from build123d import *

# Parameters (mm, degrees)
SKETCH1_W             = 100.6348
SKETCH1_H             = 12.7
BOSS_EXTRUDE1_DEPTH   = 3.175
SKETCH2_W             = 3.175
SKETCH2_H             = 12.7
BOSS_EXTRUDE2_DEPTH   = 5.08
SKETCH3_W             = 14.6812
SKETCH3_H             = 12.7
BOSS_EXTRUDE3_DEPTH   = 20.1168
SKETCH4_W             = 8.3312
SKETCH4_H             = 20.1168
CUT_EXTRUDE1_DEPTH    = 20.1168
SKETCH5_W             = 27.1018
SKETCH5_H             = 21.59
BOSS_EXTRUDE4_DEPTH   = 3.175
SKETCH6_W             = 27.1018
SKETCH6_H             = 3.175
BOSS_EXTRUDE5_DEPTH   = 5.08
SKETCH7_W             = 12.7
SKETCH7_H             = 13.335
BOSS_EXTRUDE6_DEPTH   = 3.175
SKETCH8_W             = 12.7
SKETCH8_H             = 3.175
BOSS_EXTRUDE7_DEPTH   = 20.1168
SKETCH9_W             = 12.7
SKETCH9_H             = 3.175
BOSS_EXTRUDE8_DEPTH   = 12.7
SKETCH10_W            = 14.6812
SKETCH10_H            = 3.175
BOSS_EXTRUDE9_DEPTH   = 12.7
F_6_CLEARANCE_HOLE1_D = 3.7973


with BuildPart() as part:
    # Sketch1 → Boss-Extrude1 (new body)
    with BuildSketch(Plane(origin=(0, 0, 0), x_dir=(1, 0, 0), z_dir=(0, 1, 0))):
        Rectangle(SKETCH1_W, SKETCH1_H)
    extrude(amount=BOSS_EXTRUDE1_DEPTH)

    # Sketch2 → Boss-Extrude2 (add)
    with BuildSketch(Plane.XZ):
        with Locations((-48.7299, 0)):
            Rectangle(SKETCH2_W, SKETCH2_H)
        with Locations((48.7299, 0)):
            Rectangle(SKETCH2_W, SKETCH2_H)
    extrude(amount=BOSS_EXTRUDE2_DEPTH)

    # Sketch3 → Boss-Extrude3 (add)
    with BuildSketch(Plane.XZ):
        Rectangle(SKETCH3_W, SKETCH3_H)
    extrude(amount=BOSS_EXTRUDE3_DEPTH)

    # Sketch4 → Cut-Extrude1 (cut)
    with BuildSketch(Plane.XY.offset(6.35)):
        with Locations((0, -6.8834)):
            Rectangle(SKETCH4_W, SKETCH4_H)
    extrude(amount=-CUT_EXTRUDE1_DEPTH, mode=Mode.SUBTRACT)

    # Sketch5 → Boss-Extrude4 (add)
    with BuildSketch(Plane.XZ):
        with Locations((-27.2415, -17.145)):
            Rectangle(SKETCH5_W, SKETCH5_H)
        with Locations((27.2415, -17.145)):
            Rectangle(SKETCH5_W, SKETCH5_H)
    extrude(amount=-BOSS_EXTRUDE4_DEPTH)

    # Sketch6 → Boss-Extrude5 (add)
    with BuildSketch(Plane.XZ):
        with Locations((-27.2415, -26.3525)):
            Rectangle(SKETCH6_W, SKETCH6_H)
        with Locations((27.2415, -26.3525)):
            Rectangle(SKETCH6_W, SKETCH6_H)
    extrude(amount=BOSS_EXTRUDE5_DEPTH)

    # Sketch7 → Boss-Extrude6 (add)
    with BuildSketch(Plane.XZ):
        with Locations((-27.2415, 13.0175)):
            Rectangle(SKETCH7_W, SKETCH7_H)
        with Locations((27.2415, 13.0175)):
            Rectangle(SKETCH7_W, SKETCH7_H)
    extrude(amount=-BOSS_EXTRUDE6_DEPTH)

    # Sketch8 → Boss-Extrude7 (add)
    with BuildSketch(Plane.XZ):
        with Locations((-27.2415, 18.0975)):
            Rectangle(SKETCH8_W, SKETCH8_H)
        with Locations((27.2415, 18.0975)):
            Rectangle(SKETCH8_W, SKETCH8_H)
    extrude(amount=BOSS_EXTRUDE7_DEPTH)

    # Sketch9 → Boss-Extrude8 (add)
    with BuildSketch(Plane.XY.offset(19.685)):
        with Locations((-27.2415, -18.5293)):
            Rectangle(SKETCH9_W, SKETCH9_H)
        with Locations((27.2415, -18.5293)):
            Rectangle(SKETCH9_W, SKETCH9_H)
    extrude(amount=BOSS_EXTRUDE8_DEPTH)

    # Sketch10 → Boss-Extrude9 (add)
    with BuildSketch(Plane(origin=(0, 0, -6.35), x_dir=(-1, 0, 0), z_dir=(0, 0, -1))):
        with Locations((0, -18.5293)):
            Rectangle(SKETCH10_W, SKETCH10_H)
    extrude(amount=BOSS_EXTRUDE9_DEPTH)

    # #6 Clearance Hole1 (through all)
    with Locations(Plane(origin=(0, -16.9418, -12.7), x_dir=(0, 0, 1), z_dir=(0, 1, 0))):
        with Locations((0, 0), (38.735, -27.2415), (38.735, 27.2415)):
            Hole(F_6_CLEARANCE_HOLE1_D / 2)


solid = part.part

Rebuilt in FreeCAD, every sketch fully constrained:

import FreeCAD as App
import Part
import Sketcher

V = App.Vector
Q = App.Units.Quantity


def add_polygon(sketch, points):
    """Adds a closed chain of lines whose ends are joined by coincident constraints."""
    first, n = sketch.GeometryCount, len(points)
    for a, b in zip(points, points[1:] + points[:1]):
        sketch.addGeometry(Part.LineSegment(App.Vector(*a, 0), App.Vector(*b, 0)), False)
    for i in range(n):
        sketch.addConstraint(Sketcher.Constraint("Coincident", first + i, 2, first + (i + 1) % n, 1))

doc = App.newDocument("Part")
params = doc.addObject("Spreadsheet::Sheet", "Params")
for row, (alias, value) in enumerate([
    ("sketch1_height", "0.5 in"),
    ("sketch1_width", "3.962 in"),
    ("pad1_length", "0.125 in"),
    ("sketch2_height", "0.5 in"),
    ("sketch2_width", "0.125 in"),
    ("pad2_length", "0.2 in"),
    ("sketch3_height", "0.5 in"),
    ("sketch3_width", "0.578 in"),
    ("pad3_length", "0.792 in"),
    ("sketch4_width", "0.328 in"),
    ("sketch4_height", "0.792 in"),
    ("pocket1_length", "0.792 in"),
    ("sketch5_height", "0.85 in"),
    ("sketch5_width", "1.067 in"),
    ("pad4_length", "0.125 in"),
    ("sketch6_width", "1.067 in"),
    ("sketch6_height", "0.125 in"),
    ("pad5_length", "0.2 in"),
    ("sketch7_width", "0.5 in"),
    ("sketch7_height", "0.525 in"),
    ("pad6_length", "0.125 in"),
    ("sketch8_width", "0.5 in"),
    ("sketch8_height", "0.125 in"),
    ("pad7_length", "0.792 in"),
    ("sketch9_width", "0.5 in"),
    ("sketch9_height", "0.125 in"),
    ("pad8_length", "0.5 in"),
    ("sketch10_width", "0.578 in"),
    ("sketch10_height", "0.125 in"),
    ("pad9_length", "0.5 in"),
    ("hole_diameter", "0.1495 in"),
], start=1):
    params.set(f"A{row}", alias)
    params.set(f"B{row}", "=" + value)
    params.setAlias(f"B{row}", alias)

body = doc.addObject("PartDesign::Body", "Body")

sketch1 = body.newObject("Sketcher::SketchObject", "Sketch")
sketch1.AttachmentSupport = (doc.getObject("XZ_Plane"), [""])
sketch1.MapMode = "FlatFace"
add_polygon(sketch1, [(-50, -6), (-50, 6), (50, 6), (50, -6)])
sketch1.addConstraint(Sketcher.Constraint("Vertical", 0))
sketch1.addConstraint(Sketcher.Constraint("Horizontal", 1))
sketch1.addConstraint(Sketcher.Constraint("Vertical", 2))
sketch1.addConstraint(Sketcher.Constraint("Horizontal", 3))
sketch1.addConstraint(Sketcher.Constraint("Symmetric", 0, 2, 2, 2, -1, 1))
sketch1.addConstraint(Sketcher.Constraint("DistanceY", 0, 1, 0, 2, Q("0.5 in")))
sketch1.addConstraint(Sketcher.Constraint("DistanceX", 1, 1, 1, 2, Q("3.962 in")))
sketch1.setExpression("Constraints[9]", "Params.sketch1_height")
sketch1.setExpression("Constraints[10]", "Params.sketch1_width")
pad1 = body.newObject("PartDesign::Pad", "Pad")
pad1.Profile = sketch1
pad1.setExpression("Length", "Params.pad1_length")
pad1.Reversed = True

sketch2 = body.newObject("Sketcher::SketchObject", "Sketch001")
sketch2.AttachmentSupport = (doc.getObject("XZ_Plane"), [""])
sketch2.MapMode = "FlatFace"
add_polygon(sketch2, [(-50.3, 6.3), (-50.3, -6.3), (-47.1, -6.3), (-47.1, 6.3)])
add_polygon(sketch2, [(47.1, 6.3), (47.1, -6.3), (50.3, -6.3), (50.3, 6.3)])
sketch2.addConstraint(Sketcher.Constraint("Vertical", 0))
sketch2.addConstraint(Sketcher.Constraint("Horizontal", 1))
sketch2.addConstraint(Sketcher.Constraint("Vertical", 2))
sketch2.addConstraint(Sketcher.Constraint("Horizontal", 3))
sketch2.addConstraint(Sketcher.Constraint("Vertical", 4))
sketch2.addConstraint(Sketcher.Constraint("Horizontal", 5))
sketch2.addConstraint(Sketcher.Constraint("Vertical", 6))
sketch2.addConstraint(Sketcher.Constraint("Horizontal", 7))
sketch2.addConstraint(Sketcher.Constraint("Symmetric", 2, 2, 4, 2, -1, 1))
sketch2.addConstraint(Sketcher.Constraint("Symmetric", 0, 2, 6, 2, -1, 1))
sketch2.addConstraint(Sketcher.Constraint("Horizontal", 1, 2, 4, 2))
sketch2.addConstraint(Sketcher.Constraint("DistanceY", 0, 2, 0, 1, Q("0.5 in")))
sketch2.addConstraint(Sketcher.Constraint("DistanceX", 1, 1, 1, 2, Q("0.125 in")))
sketch2.addConstraint(Sketcher.Constraint("DistanceX", 0, 2, -1, 1, Q("1.981 in")))
sketch2.setExpression("Constraints[19]", "Params.sketch2_height")
sketch2.setExpression("Constraints[20]", "Params.sketch2_width")
pad2 = body.newObject("PartDesign::Pad", "Pad001")
pad2.Profile = sketch2
pad2.setExpression("Length", "Params.pad2_length")

sketch3 = body.newObject("Sketcher::SketchObject", "Sketch002")
sketch3.AttachmentSupport = (doc.getObject("XZ_Plane"), [""])
sketch3.MapMode = "FlatFace"
add_polygon(sketch3, [(-7, 6), (-7, -6), (7, -6), (7, 6)])
sketch3.addConstraint(Sketcher.Constraint("Vertical", 0))
sketch3.addConstraint(Sketcher.Constraint("Horizontal", 1))
sketch3.addConstraint(Sketcher.Constraint("Vertical", 2))
sketch3.addConstraint(Sketcher.Constraint("Horizontal", 3))
sketch3.addConstraint(Sketcher.Constraint("Symmetric", 0, 2, 2, 2, -1, 1))
sketch3.addConstraint(Sketcher.Constraint("DistanceY", 0, 2, 0, 1, Q("0.5 in")))
sketch3.addConstraint(Sketcher.Constraint("DistanceX", 1, 1, 1, 2, Q("0.578 in")))
sketch3.setExpression("Constraints[9]", "Params.sketch3_height")
sketch3.setExpression("Constraints[10]", "Params.sketch3_width")
pad3 = body.newObject("PartDesign::Pad", "Pad002")
pad3.Profile = sketch3
pad3.setExpression("Length", "Params.pad3_length")

sketch4 = body.newObject("Sketcher::SketchObject", "Sketch003")
sketch4.AttachmentSupport = (doc.getObject("XY_Plane"), [""])
sketch4.MapMode = "FlatFace"
sketch4.AttachmentOffset = App.Placement(V(0, 0, 0.25 * 25.4), App.Rotation())
add_polygon(sketch4, [(-4, 3), (-4, -17), (4, -17), (4, 3)])
sketch4.addConstraint(Sketcher.Constraint("Vertical", 0))
sketch4.addConstraint(Sketcher.Constraint("Horizontal", 1))
sketch4.addConstraint(Sketcher.Constraint("Vertical", 2))
sketch4.addConstraint(Sketcher.Constraint("Horizontal", 3))
sketch4.addConstraint(Sketcher.Constraint("DistanceX", 1, 1, 1, 2, Q("0.328 in")))
sketch4.addConstraint(Sketcher.Constraint("DistanceY", 0, 2, 0, 1, Q("0.792 in")))
sketch4.addConstraint(Sketcher.Constraint("DistanceX", 0, 2, -1, 1, Q("0.164 in")))
sketch4.addConstraint(Sketcher.Constraint("DistanceY", 0, 2, -1, 1, Q("0.667 in")))
sketch4.setExpression("Constraints[8]", "Params.sketch4_width")
sketch4.setExpression("Constraints[9]", "Params.sketch4_height")
pocket1 = body.newObject("PartDesign::Pocket", "Pocket")
pocket1.Profile = sketch4
pocket1.setExpression("Length", "Params.pocket1_length")

sketch5 = body.newObject("Sketcher::SketchObject", "Sketch004")
sketch5.AttachmentSupport = (doc.getObject("XZ_Plane"), [""])
sketch5.MapMode = "FlatFace"
add_polygon(sketch5, [(-41, -6), (-41, -28), (-14, -28), (-14, -6)])
add_polygon(sketch5, [(14, -6), (14, -28), (41, -28), (41, -6)])
sketch5.addConstraint(Sketcher.Constraint("Vertical", 0))
sketch5.addConstraint(Sketcher.Constraint("Horizontal", 1))
sketch5.addConstraint(Sketcher.Constraint("Vertical", 2))
sketch5.addConstraint(Sketcher.Constraint("Horizontal", 3))
sketch5.addConstraint(Sketcher.Constraint("Vertical", 4))
sketch5.addConstraint(Sketcher.Constraint("Horizontal", 5))
sketch5.addConstraint(Sketcher.Constraint("Vertical", 6))
sketch5.addConstraint(Sketcher.Constraint("Horizontal", 7))
sketch5.addConstraint(Sketcher.Constraint("Symmetric", 1, 2, 4, 2, -2))
sketch5.addConstraint(Sketcher.Constraint("Symmetric", 3, 2, 6, 2, -2))
sketch5.addConstraint(Sketcher.Constraint("DistanceY", 0, 2, 0, 1, Q("0.85 in")))
sketch5.addConstraint(Sketcher.Constraint("DistanceY", 0, 2, -1, 1, Q("1.1 in")))
sketch5.addConstraint(Sketcher.Constraint("DistanceX", 1, 1, 1, 2, Q("1.067 in")))
sketch5.addConstraint(Sketcher.Constraint("DistanceX", 0, 2, -1, 1, Q("1.606 in")))
sketch5.setExpression("Constraints[18]", "Params.sketch5_height")
sketch5.setExpression("Constraints[20]", "Params.sketch5_width")
pad4 = body.newObject("PartDesign::Pad", "Pad003")
pad4.Profile = sketch5
pad4.setExpression("Length", "Params.pad4_length")
pad4.Reversed = True

sketch6 = body.newObject("Sketcher::SketchObject", "Sketch005")
sketch6.AttachmentSupport = (doc.getObject("XZ_Plane"), [""])
sketch6.MapMode = "FlatFace"
add_polygon(sketch6, [(-40.8, -24.8), (-40.8, -27.9), (-13.7, -27.9), (-13.7, -24.8)])
add_polygon(sketch6, [(13.7, -24.8), (13.7, -27.9), (40.8, -27.9), (40.8, -24.8)])
sketch6.addConstraint(Sketcher.Constraint("Vertical", 0))
sketch6.addConstraint(Sketcher.Constraint("Horizontal", 1))
sketch6.addConstraint(Sketcher.Constraint("Vertical", 2))
sketch6.addConstraint(Sketcher.Constraint("Horizontal", 3))
sketch6.addConstraint(Sketcher.Constraint("Vertical", 4))
sketch6.addConstraint(Sketcher.Constraint("Horizontal", 5))
sketch6.addConstraint(Sketcher.Constraint("Vertical", 6))
sketch6.addConstraint(Sketcher.Constraint("Horizontal", 7))
sketch6.addConstraint(Sketcher.Constraint("Symmetric", 1, 2, 4, 2, -2))
sketch6.addConstraint(Sketcher.Constraint("Symmetric", 3, 2, 6, 2, -2))
sketch6.addConstraint(Sketcher.Constraint("DistanceY", 0, 2, -1, 1, Q("1.1 in")))
sketch6.addConstraint(Sketcher.Constraint("DistanceX", 1, 1, 1, 2, Q("1.067 in")))
sketch6.addConstraint(Sketcher.Constraint("DistanceY", 0, 2, 0, 1, Q("0.125 in")))
sketch6.addConstraint(Sketcher.Constraint("DistanceX", 0, 2, -1, 1, Q("1.606 in")))
sketch6.setExpression("Constraints[19]", "Params.sketch6_width")
sketch6.setExpression("Constraints[20]", "Params.sketch6_height")
pad5 = body.newObject("PartDesign::Pad", "Pad004")
pad5.Profile = sketch6
pad5.setExpression("Length", "Params.pad5_length")

sketch7 = body.newObject("Sketcher::SketchObject", "Sketch006")
sketch7.AttachmentSupport = (doc.getObject("XZ_Plane"), [""])
sketch7.MapMode = "FlatFace"
add_polygon(sketch7, [(-34, 20), (-34, 6), (-21, 6), (-21, 20)])
add_polygon(sketch7, [(21, 20), (21, 6), (34, 6), (34, 20)])
sketch7.addConstraint(Sketcher.Constraint("Vertical", 0))
sketch7.addConstraint(Sketcher.Constraint("Horizontal", 1))
sketch7.addConstraint(Sketcher.Constraint("Vertical", 2))
sketch7.addConstraint(Sketcher.Constraint("Horizontal", 3))
sketch7.addConstraint(Sketcher.Constraint("Vertical", 4))
sketch7.addConstraint(Sketcher.Constraint("Horizontal", 5))
sketch7.addConstraint(Sketcher.Constraint("Vertical", 6))
sketch7.addConstraint(Sketcher.Constraint("Horizontal", 7))
sketch7.addConstraint(Sketcher.Constraint("Symmetric", 1, 2, 4, 2, -2))
sketch7.addConstraint(Sketcher.Constraint("Symmetric", 3, 2, 6, 2, -2))
sketch7.addConstraint(Sketcher.Constraint("DistanceX", 1, 1, 1, 2, Q("0.5 in")))
sketch7.addConstraint(Sketcher.Constraint("DistanceY", 0, 2, 0, 1, Q("0.525 in")))
sketch7.addConstraint(Sketcher.Constraint("DistanceY", -1, 1, 0, 2, Q("0.25 in")))
sketch7.addConstraint(Sketcher.Constraint("DistanceX", 1, 2, 4, 2, Q("1.645 in")))
sketch7.setExpression("Constraints[18]", "Params.sketch7_width")
sketch7.setExpression("Constraints[19]", "Params.sketch7_height")
pad6 = body.newObject("PartDesign::Pad", "Pad005")
pad6.Profile = sketch7
pad6.setExpression("Length", "Params.pad6_length")
pad6.Reversed = True

sketch8 = body.newObject("Sketcher::SketchObject", "Sketch007")
sketch8.AttachmentSupport = (doc.getObject("XZ_Plane"), [""])
sketch8.MapMode = "FlatFace"
add_polygon(sketch8, [(-33.6, 19.7), (-33.6, 16.5), (-20.9, 16.5), (-20.9, 19.7)])
add_polygon(sketch8, [(20.9, 19.7), (20.9, 16.5), (33.6, 16.5), (33.6, 19.7)])
sketch8.addConstraint(Sketcher.Constraint("Vertical", 0))
sketch8.addConstraint(Sketcher.Constraint("Horizontal", 1))
sketch8.addConstraint(Sketcher.Constraint("Vertical", 2))
sketch8.addConstraint(Sketcher.Constraint("Horizontal", 3))
sketch8.addConstraint(Sketcher.Constraint("Vertical", 4))
sketch8.addConstraint(Sketcher.Constraint("Horizontal", 5))
sketch8.addConstraint(Sketcher.Constraint("Vertical", 6))
sketch8.addConstraint(Sketcher.Constraint("Horizontal", 7))
sketch8.addConstraint(Sketcher.Constraint("Symmetric", 1, 2, 4, 2, -2))
sketch8.addConstraint(Sketcher.Constraint("Symmetric", 3, 2, 6, 2, -2))
sketch8.addConstraint(Sketcher.Constraint("DistanceX", 1, 1, 1, 2, Q("0.5 in")))
sketch8.addConstraint(Sketcher.Constraint("DistanceY", 0, 2, 0, 1, Q("0.125 in")))
sketch8.addConstraint(Sketcher.Constraint("DistanceY", -1, 1, 0, 2, Q("0.65 in")))
sketch8.addConstraint(Sketcher.Constraint("DistanceX", 1, 2, 4, 2, Q("1.645 in")))
sketch8.setExpression("Constraints[18]", "Params.sketch8_width")
sketch8.setExpression("Constraints[19]", "Params.sketch8_height")
pad7 = body.newObject("PartDesign::Pad", "Pad006")
pad7.Profile = sketch8
pad7.setExpression("Length", "Params.pad7_length")

sketch9 = body.newObject("Sketcher::SketchObject", "Sketch008")
sketch9.AttachmentSupport = (doc.getObject("XY_Plane"), [""])
sketch9.MapMode = "FlatFace"
sketch9.AttachmentOffset = App.Placement(V(0, 0, 0.775 * 25.4), App.Rotation())
add_polygon(sketch9, [(-33.6, -16.9), (-33.6, -20.1), (-20.9, -20.1), (-20.9, -16.9)])
add_polygon(sketch9, [(20.9, -16.9), (20.9, -20.1), (33.6, -20.1), (33.6, -16.9)])
sketch9.addConstraint(Sketcher.Constraint("Vertical", 0))
sketch9.addConstraint(Sketcher.Constraint("Horizontal", 1))
sketch9.addConstraint(Sketcher.Constraint("Vertical", 2))
sketch9.addConstraint(Sketcher.Constraint("Horizontal", 3))
sketch9.addConstraint(Sketcher.Constraint("Vertical", 4))
sketch9.addConstraint(Sketcher.Constraint("Horizontal", 5))
sketch9.addConstraint(Sketcher.Constraint("Vertical", 6))
sketch9.addConstraint(Sketcher.Constraint("Horizontal", 7))
sketch9.addConstraint(Sketcher.Constraint("Symmetric", 1, 2, 4, 2, -2))
sketch9.addConstraint(Sketcher.Constraint("Symmetric", 3, 2, 6, 2, -2))
sketch9.addConstraint(Sketcher.Constraint("DistanceX", 1, 1, 1, 2, Q("0.5 in")))
sketch9.addConstraint(Sketcher.Constraint("DistanceY", 0, 2, 0, 1, Q("0.125 in")))
sketch9.addConstraint(Sketcher.Constraint("DistanceY", 0, 2, -1, 1, Q("0.792 in")))
sketch9.addConstraint(Sketcher.Constraint("DistanceX", 1, 2, 4, 2, Q("1.645 in")))
sketch9.setExpression("Constraints[18]", "Params.sketch9_width")
sketch9.setExpression("Constraints[19]", "Params.sketch9_height")
pad8 = body.newObject("PartDesign::Pad", "Pad007")
pad8.Profile = sketch9
pad8.setExpression("Length", "Params.pad8_length")

sketch10 = body.newObject("Sketcher::SketchObject", "Sketch009")
sketch10.AttachmentSupport = (doc.getObject("XY_Plane"), [""])
sketch10.MapMode = "FlatFace"
sketch10.AttachmentOffset = App.Placement(V(0, 0, -0.25 * 25.4), App.Rotation())
add_polygon(sketch10, [(7.3, -16.9), (7.3, -20.1), (-7.3, -20.1), (-7.3, -16.9)])
sketch10.addConstraint(Sketcher.Constraint("Vertical", 0))
sketch10.addConstraint(Sketcher.Constraint("Horizontal", 1))
sketch10.addConstraint(Sketcher.Constraint("Vertical", 2))
sketch10.addConstraint(Sketcher.Constraint("Horizontal", 3))
sketch10.addConstraint(Sketcher.Constraint("DistanceX", 1, 2, 1, 1, Q("0.578 in")))
sketch10.addConstraint(Sketcher.Constraint("DistanceY", 0, 2, 0, 1, Q("0.125 in")))
sketch10.addConstraint(Sketcher.Constraint("DistanceX", -1, 1, 0, 2, Q("0.289 in")))
sketch10.addConstraint(Sketcher.Constraint("DistanceY", 0, 2, -1, 1, Q("0.792 in")))
sketch10.setExpression("Constraints[8]", "Params.sketch10_width")
sketch10.setExpression("Constraints[9]", "Params.sketch10_height")
pad9 = body.newObject("PartDesign::Pad", "Pad008")
pad9.Profile = sketch10
pad9.setExpression("Length", "Params.pad9_length")
pad9.Reversed = True

sketch11 = body.newObject("Sketcher::SketchObject", "Sketch010")
sketch11.AttachmentSupport = (doc.getObject("XZ_Plane"), [""])
sketch11.MapMode = "FlatFace"
sketch11.AttachmentOffset = App.Placement(V(0, 0, 0.667 * 25.4), App.Rotation())
sketch11.addGeometry(Part.Circle(V(0, -12.7, 0), V(0, 0, 1), 1.9), False)
sketch11.addGeometry(Part.Circle(V(-27.2, 26, 0), V(0, 0, 1), 1.9), False)
sketch11.addGeometry(Part.Circle(V(27.2, 26, 0), V(0, 0, 1), 1.9), False)
sketch11.addConstraint(Sketcher.Constraint("Equal", 0, 1))
sketch11.addConstraint(Sketcher.Constraint("Equal", 1, 2))
sketch11.addConstraint(Sketcher.Constraint("Symmetric", 1, 3, 2, 3, -2))
sketch11.addConstraint(Sketcher.Constraint("PointOnObject", 0, 3, -2))
sketch11.addConstraint(Sketcher.Constraint("Diameter", 0, Q("0.1495 in")))
sketch11.addConstraint(Sketcher.Constraint("DistanceY", 0, 3, -1, 1, Q("0.5 in")))
sketch11.addConstraint(Sketcher.Constraint("DistanceY", -1, 1, 1, 3, Q("1.025 in")))
sketch11.addConstraint(Sketcher.Constraint("DistanceX", 1, 3, 2, 3, Q("2.145 in")))
doc.recompute()
hole = body.newObject("PartDesign::Hole", "Hole")
hole.Profile = sketch11
hole.ThreadType = "None"
hole.setExpression("Diameter", "Params.hole_diameter")
hole.DepthType = "ThroughAll"
hole.Reversed = True

doc.recompute()
